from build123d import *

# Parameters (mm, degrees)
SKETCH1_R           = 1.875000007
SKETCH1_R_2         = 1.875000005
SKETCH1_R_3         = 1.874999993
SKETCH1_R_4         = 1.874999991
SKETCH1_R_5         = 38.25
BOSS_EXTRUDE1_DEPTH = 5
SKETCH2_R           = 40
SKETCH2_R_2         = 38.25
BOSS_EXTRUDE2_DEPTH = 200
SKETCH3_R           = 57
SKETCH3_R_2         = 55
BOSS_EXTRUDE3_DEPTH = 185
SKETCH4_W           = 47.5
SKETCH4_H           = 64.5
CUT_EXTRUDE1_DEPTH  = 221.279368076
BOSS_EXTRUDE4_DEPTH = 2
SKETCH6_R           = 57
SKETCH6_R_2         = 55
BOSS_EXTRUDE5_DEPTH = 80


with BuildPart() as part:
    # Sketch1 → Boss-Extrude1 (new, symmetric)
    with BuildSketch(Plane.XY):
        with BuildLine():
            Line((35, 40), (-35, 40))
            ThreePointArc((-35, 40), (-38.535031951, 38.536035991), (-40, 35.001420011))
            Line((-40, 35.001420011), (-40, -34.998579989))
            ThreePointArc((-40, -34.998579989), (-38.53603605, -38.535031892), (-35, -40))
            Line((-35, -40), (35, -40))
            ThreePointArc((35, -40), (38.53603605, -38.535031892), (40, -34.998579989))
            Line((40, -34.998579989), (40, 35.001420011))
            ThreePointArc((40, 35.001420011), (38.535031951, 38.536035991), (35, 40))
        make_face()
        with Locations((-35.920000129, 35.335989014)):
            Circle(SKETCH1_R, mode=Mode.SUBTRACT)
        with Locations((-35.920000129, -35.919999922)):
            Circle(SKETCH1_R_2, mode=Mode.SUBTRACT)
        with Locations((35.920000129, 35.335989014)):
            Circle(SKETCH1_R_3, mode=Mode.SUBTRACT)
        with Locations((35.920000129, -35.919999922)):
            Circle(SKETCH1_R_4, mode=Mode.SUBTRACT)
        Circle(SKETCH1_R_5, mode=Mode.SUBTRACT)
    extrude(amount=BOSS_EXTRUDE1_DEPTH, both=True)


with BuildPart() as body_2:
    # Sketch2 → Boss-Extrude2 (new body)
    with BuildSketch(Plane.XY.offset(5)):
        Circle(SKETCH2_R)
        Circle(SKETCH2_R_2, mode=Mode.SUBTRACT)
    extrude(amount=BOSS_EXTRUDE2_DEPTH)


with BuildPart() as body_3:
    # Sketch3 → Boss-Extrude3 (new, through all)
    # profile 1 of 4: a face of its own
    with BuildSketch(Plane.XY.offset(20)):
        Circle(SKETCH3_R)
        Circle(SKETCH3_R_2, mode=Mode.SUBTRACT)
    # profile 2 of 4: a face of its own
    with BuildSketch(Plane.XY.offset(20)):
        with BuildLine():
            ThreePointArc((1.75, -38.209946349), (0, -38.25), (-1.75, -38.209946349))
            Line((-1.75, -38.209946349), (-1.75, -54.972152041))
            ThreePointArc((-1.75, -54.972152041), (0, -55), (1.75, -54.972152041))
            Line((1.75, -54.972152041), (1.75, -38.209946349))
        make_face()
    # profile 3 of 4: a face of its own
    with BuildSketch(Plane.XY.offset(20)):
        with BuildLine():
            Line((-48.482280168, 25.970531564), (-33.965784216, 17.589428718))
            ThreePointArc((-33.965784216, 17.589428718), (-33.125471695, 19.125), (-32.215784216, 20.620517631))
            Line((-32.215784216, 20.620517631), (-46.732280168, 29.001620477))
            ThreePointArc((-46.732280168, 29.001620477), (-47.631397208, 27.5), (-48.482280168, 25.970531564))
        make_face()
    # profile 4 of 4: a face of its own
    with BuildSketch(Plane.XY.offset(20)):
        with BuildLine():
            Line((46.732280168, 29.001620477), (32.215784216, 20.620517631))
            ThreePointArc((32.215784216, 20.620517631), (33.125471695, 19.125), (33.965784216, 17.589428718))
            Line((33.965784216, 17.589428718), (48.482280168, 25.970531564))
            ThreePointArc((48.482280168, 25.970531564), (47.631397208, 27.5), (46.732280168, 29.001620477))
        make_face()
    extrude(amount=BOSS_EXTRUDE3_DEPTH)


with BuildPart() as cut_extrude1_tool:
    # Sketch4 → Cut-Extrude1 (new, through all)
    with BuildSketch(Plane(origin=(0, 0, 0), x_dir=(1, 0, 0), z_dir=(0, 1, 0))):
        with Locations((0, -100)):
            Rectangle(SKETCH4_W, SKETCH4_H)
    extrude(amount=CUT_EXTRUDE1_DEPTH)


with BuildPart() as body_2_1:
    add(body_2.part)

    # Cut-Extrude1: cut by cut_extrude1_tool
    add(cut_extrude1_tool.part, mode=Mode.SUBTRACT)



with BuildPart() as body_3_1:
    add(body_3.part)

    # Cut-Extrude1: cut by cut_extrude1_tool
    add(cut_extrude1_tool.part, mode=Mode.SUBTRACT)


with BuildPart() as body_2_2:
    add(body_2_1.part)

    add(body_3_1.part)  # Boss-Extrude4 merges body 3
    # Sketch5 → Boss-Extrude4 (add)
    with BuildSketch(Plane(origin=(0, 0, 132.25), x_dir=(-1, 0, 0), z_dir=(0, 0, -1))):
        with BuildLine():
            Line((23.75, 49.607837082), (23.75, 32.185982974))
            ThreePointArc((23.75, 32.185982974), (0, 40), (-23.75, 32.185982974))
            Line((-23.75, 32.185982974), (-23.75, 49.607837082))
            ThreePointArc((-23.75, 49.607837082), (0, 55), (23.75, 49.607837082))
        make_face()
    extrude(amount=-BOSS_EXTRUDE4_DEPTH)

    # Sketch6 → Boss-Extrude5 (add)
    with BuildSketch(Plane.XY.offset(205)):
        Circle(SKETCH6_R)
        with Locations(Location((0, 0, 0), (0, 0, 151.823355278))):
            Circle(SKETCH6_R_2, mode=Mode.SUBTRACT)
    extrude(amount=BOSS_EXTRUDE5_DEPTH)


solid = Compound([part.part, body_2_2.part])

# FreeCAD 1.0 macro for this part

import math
import FreeCAD as App
import Part
import Sketcher
from FreeCAD import Vector
Q = App.Units.Quantity


def add_polygon(sketch, points):
    """Adds a closed chain of lines whose ends are joined by coincident constraints."""
    first, n = sketch.GeometryCount, len(points)
    for a, b in zip(points, points[1:] + points[:1]):
        sketch.addGeometry(Part.LineSegment(App.Vector(*a, 0), App.Vector(*b, 0)), False)
    for i in range(n):
        sketch.addConstraint(Sketcher.Constraint("Coincident", first + i, 2, first + (i + 1) % n, 1))

doc = App.newDocument("Part")
body = doc.addObject("PartDesign::Body", "Body")

# Sketch on XY plane
sketch1 = doc.addObject("Sketcher::SketchObject", "Sketch")
body.addObject(sketch1)
sketch1.AttachmentSupport = (doc.XY_Plane, [""])
sketch1.MapMode = "FlatFace"
sketch1.addGeometry(Part.LineSegment(Vector(35, 40, 0), Vector(-35, 40, 0)), False)
sketch1.addGeometry(Part.ArcOfCircle(Part.Circle(Vector(-35, 35, 0), Vector(0, 0, 1), 5), math.radians(90), math.radians(180)), False)
sketch1.addGeometry(Part.LineSegment(Vector(-40, 35, 0), Vector(-40, -35, 0)), False)
sketch1.addGeometry(Part.ArcOfCircle(Part.Circle(Vector(-35, -35, 0), Vector(0, 0, 1), 5), math.radians(180), math.radians(270)), False)
sketch1.addGeometry(Part.LineSegment(Vector(-35, -40, 0), Vector(35, -40, 0)), False)
sketch1.addGeometry(Part.ArcOfCircle(Part.Circle(Vector(35, -35, 0), Vector(0, 0, 1), 5), math.radians(-90), math.radians(0)), False)
sketch1.addGeometry(Part.LineSegment(Vector(40, -35, 0), Vector(40, 35, 0)), False)
sketch1.addGeometry(Part.ArcOfCircle(Part.Circle(Vector(35, 35, 0), Vector(0, 0, 1), 5), math.radians(0), math.radians(90)), False)
sketch1.addGeometry(Part.Circle(Vector(-35.9, -35.9, 0), Vector(0, 0, 1), 1.9), False)
sketch1.addGeometry(Part.Circle(Vector(35.9, -35.9, 0), Vector(0, 0, 1), 1.9), False)
sketch1.addGeometry(Part.Circle(Vector(-35.9, 35.3, 0), Vector(0, 0, 1), 1.9), False)
sketch1.addGeometry(Part.Circle(Vector(0, 0, 0), Vector(0, 0, 1), 38.2), False)
sketch1.addGeometry(Part.Circle(Vector(35.9, 35.3, 0), Vector(0, 0, 1), 1.9), False)
sketch1.addConstraint(Sketcher.Constraint("Tangent", 0, 2, 1, 1))
sketch1.addConstraint(Sketcher.Constraint("Coincident", 1, 2, 2, 1))
sketch1.addConstraint(Sketcher.Constraint("Coincident", 2, 2, 3, 1))
sketch1.addConstraint(Sketcher.Constraint("Tangent", 3, 2, 4, 1))
sketch1.addConstraint(Sketcher.Constraint("Tangent", 4, 2, 5, 1))
sketch1.addConstraint(Sketcher.Constraint("Coincident", 5, 2, 6, 1))
sketch1.addConstraint(Sketcher.Constraint("Coincident", 6, 2, 7, 1))
sketch1.addConstraint(Sketcher.Constraint("Tangent", 7, 2, 0, 1))
sketch1.addConstraint(Sketcher.Constraint("Horizontal", 0))
sketch1.addConstraint(Sketcher.Constraint("Vertical", 2))
sketch1.addConstraint(Sketcher.Constraint("Horizontal", 4))
sketch1.addConstraint(Sketcher.Constraint("Vertical", 6))
sketch1.addConstraint(Sketcher.Constraint("Coincident", 11, 3, -1, 1))
sketch1.addConstraint(Sketcher.Constraint("Equal", 1, 3))
sketch1.addConstraint(Sketcher.Constraint("Equal", 3, 5))
sketch1.addConstraint(Sketcher.Constraint("Equal", 5, 7))
sketch1.addConstraint(Sketcher.Constraint("Equal", 8, 9))
sketch1.addConstraint(Sketcher.Constraint("Equal", 9, 10))
sketch1.addConstraint(Sketcher.Constraint("Equal", 10, 12))
sketch1.addConstraint(Sketcher.Constraint("Symmetric", 1, 3, 5, 3, -1, 1))
sketch1.addConstraint(Sketcher.Constraint("Symmetric", 8, 3, 9, 3, -2))
sketch1.addConstraint(Sketcher.Constraint("Symmetric", 10, 3, 12, 3, -2))
sketch1.addConstraint(Sketcher.Constraint("Horizontal", 2, 2, 5, 2))
sketch1.addConstraint(Sketcher.Constraint("Horizontal", 1, 2, 6, 2))
sketch1.addConstraint(Sketcher.Constraint("Vertical", 8, 3, 10, 3))
sketch1.addConstraint(Sketcher.Constraint("Equal", 4, 2))
sketch1.addConstraint(Sketcher.Constraint("Radius", 1, 5.0))
sketch1.addConstraint(Sketcher.Constraint("Diameter", 11, 76.5))
sketch1.addConstraint(Sketcher.Constraint("Diameter", 8, 3.75))
sketch1.addConstraint(Sketcher.Constraint("DistanceX", 0, 2, 0, 1, 70.0))
sketch1.addConstraint(Sketcher.Constraint("DistanceY", -1, 1, 1, 3, 35.0))
sketch1.addConstraint(Sketcher.Constraint("DistanceX", 8, 3, -1, 1, 35.92))
sketch1.addConstraint(Sketcher.Constraint("DistanceY", 8, 3, -1, 1, 35.92))
sketch1.addConstraint(Sketcher.Constraint("DistanceY", -1, 1, 10, 3, 35.335989))
sketch1.addConstraint(Sketcher.Constraint("DistanceY", -1, 1, 1, 2, 35.00142))
pad1 = doc.addObject("PartDesign::Pad", "Pad")
body.addObject(pad1)
pad1.Profile = sketch1
pad1.Length = 10
pad1.Midplane = True
body2 = doc.addObject("PartDesign::Body", "Body001")

# Sketch on XY plane
sketch2 = doc.addObject("Sketcher::SketchObject", "Sketch001")
body2.addObject(sketch2)
sketch2.AttachmentSupport = (doc.getObject("XY_Plane001"), [""])
sketch2.MapMode = "FlatFace"
sketch2.AttachmentOffset = App.Placement(Vector(0, 0, 5), App.Rotation())
sketch2.addGeometry(Part.Circle(Vector(0, 0, 0), Vector(0, 0, 1), 40), False)
sketch2.addGeometry(Part.Circle(Vector(0, 0, 0), Vector(0, 0, 1), 38), False)
sketch2.addConstraint(Sketcher.Constraint("Coincident", 0, 3, -1, 1))
sketch2.addConstraint(Sketcher.Constraint("Coincident", 1, 3, -1, 1))
sketch2.addConstraint(Sketcher.Constraint("Diameter", 0, 80.0))
sketch2.addConstraint(Sketcher.Constraint("Diameter", 1, 76.5))
pad2 = doc.addObject("PartDesign::Pad", "Pad001")
body2.addObject(pad2)
pad2.Profile = sketch2
pad2.Length = 200
body3 = doc.addObject("PartDesign::Body", "Body002")

# Sketch on XY plane
sketch3 = doc.addObject("Sketcher::SketchObject", "Sketch002")
body3.addObject(sketch3)
sketch3.AttachmentSupport = (doc.getObject("XY_Plane002"), [""])
sketch3.MapMode = "FlatFace"
sketch3.AttachmentOffset = App.Placement(Vector(0, 0, 20), App.Rotation())
sketch3.addGeometry(Part.Circle(Vector(0, 0, 0), Vector(0, 0, 1), 57), False)
sketch3.addGeometry(Part.ArcOfCircle(Part.Circle(Vector(0, 0, 0), Vector(0, 0, 1), 55), math.radians(-88), math.radians(28)), False)
sketch3.addGeometry(Part.LineSegment(Vector(1.8, -55, 0), Vector(1.8, -38.2, 0)), False)
sketch3.addGeometry(Part.ArcOfCircle(Part.Circle(Vector(0, 0, 0), Vector(0, 0, 1), 38.2), math.radians(-92.62), math.radians(-87.38)), False)
sketch3.addGeometry(Part.LineSegment(Vector(-1.8, -38.2, 0), Vector(-1.8, -55, 0)), False)
sketch3.addGeometry(Part.ArcOfCircle(Part.Circle(Vector(0, 0, 0), Vector(0, 0, 1), 55), math.radians(152), math.radians(268)), False)
sketch3.addGeometry(Part.LineSegment(Vector(-48.5, 26, 0), Vector(-34, 17.6, 0)), False)
sketch3.addGeometry(Part.ArcOfCircle(Part.Circle(Vector(0, 0, 0), Vector(0, 0, 1), 38.3), math.radians(147.38), math.radians(152.62)), False)
sketch3.addGeometry(Part.LineSegment(Vector(-32.2, 20.6, 0), Vector(-46.7, 29, 0)), False)
sketch3.addGeometry(Part.ArcOfCircle(Part.Circle(Vector(0, 0, 0), Vector(0, 0, 1), 55), math.radians(32), math.radians(148)), False)
sketch3.addGeometry(Part.LineSegment(Vector(46.7, 29, 0), Vector(32.2, 20.6, 0)), False)
sketch3.addGeometry(Part.ArcOfCircle(Part.Circle(Vector(0, 0, 0), Vector(0, 0, 1), 38.3), math.radians(27.38), math.radians(32.62)), False)
sketch3.addGeometry(Part.LineSegment(Vector(34, 17.6, 0), Vector(48.5, 26, 0)), False)
sketch3.addConstraint(Sketcher.Constraint("Coincident", 1, 1, 2, 1))
sketch3.addConstraint(Sketcher.Constraint("Coincident", 2, 2, 3, 2))
sketch3.addConstraint(Sketcher.Constraint("Coincident", 3, 1, 4, 1))
sketch3.addConstraint(Sketcher.Constraint("Coincident", 4, 2, 5, 2))
sketch3.addConstraint(Sketcher.Constraint("Coincident", 5, 1, 6, 1))
sketch3.addConstraint(Sketcher.Constraint("Coincident", 6, 2, 7, 2))
sketch3.addConstraint(Sketcher.Constraint("Coincident", 7, 1, 8, 1))
sketch3.addConstraint(Sketcher.Constraint("Coincident", 8, 2, 9, 2))
sketch3.addConstraint(Sketcher.Constraint("Coincident", 9, 1, 10, 1))
sketch3.addConstraint(Sketcher.Constraint("Coincident", 10, 2, 11, 2))
sketch3.addConstraint(Sketcher.Constraint("Coincident", 11, 1, 12, 1))
sketch3.addConstraint(Sketcher.Constraint("Coincident", 12, 2, 1, 2))
sketch3.addConstraint(Sketcher.Constraint("Vertical", 2))
sketch3.addConstraint(Sketcher.Constraint("Vertical", 4))
sketch3.addConstraint(Sketcher.Constraint("Coincident", 0, 3, -1, 1))
sketch3.addConstraint(Sketcher.Constraint("Coincident", 1, 3, -1, 1))
sketch3.addConstraint(Sketcher.Constraint("Coincident", 3, 3, -1, 1))
sketch3.addConstraint(Sketcher.Constraint("Coincident", 5, 3, -1, 1))
sketch3.addConstraint(Sketcher.Constraint("Coincident", 7, 3, -1, 1))
sketch3.addConstraint(Sketcher.Constraint("Coincident", 9, 3, -1, 1))
sketch3.addConstraint(Sketcher.Constraint("Coincident", 11, 3, -1, 1))
sketch3.addConstraint(Sketcher.Constraint("Equal", 1, 5))
sketch3.addConstraint(Sketcher.Constraint("Equal", 3, 7))
sketch3.addConstraint(Sketcher.Constraint("Equal", 5, 9))
sketch3.addConstraint(Sketcher.Constraint("Equal", 7, 11))
sketch3.addConstraint(Sketcher.Constraint("Parallel", 6, 8))
sketch3.addConstraint(Sketcher.Constraint("Parallel", 10, 12))
sketch3.addConstraint(Sketcher.Constraint("Horizontal", 2, 2, 3, 1))
sketch3.addConstraint(Sketcher.Constraint("Horizontal", 8, 2, 9, 1))
sketch3.addConstraint(Sketcher.Constraint("Horizontal", 7, 1, 10, 2))
sketch3.addConstraint(Sketcher.Constraint("Horizontal", 6, 2, 11, 1))
sketch3.addConstraint(Sketcher.Constraint("Equal", 6, 8))
sketch3.addConstraint(Sketcher.Constraint("Diameter", 0, 114.0))
sketch3.addConstraint(Sketcher.Constraint("Radius", 1, 55.0))
sketch3.addConstraint(Sketcher.Constraint("Angle", 6, Q("-30 deg")))
sketch3.addConstraint(Sketcher.Constraint("Radius", 3, 38.25))
sketch3.addConstraint(Sketcher.Constraint("DistanceX", 3, 1, 2, 2, 3.5))
sketch3.addConstraint(Sketcher.Constraint("DistanceX", 6, 2, 7, 1, 1.75))
pad3 = doc.addObject("PartDesign::Pad", "Pad002")
body3.addObject(pad3)
pad3.Profile = sketch3
pad3.Length = 185
body4 = doc.addObject("PartDesign::Body", "Body003")

# Sketch on XZ plane
sketch4 = doc.addObject("Sketcher::SketchObject", "Sketch003")
body4.addObject(sketch4)
sketch4.AttachmentSupport = (doc.getObject("XZ_Plane003"), [""])
sketch4.MapMode = "FlatFace"
add_polygon(sketch4, [(-24, 68), (-24, 132), (24, 132), (24, 68)])  # lines 0-3
sketch4.addConstraint(Sketcher.Constraint("Vertical", 0))
sketch4.addConstraint(Sketcher.Constraint("Horizontal", 1))
sketch4.addConstraint(Sketcher.Constraint("Vertical", 2))
sketch4.addConstraint(Sketcher.Constraint("Horizontal", 3))
sketch4.addConstraint(Sketcher.Constraint("DistanceX", 1, 1, 1, 2, 47.5))
sketch4.addConstraint(Sketcher.Constraint("DistanceY", 0, 1, 0, 2, 64.5))
sketch4.addConstraint(Sketcher.Constraint("DistanceX", 0, 2, -1, 1, 23.75))
sketch4.addConstraint(Sketcher.Constraint("DistanceY", -1, 1, 0, 2, 132.25))
pad4 = doc.addObject("PartDesign::Pad", "Pad003")
body4.addObject(pad4)
pad4.Profile = sketch4
pad4.Length = 221.279368
pad4.Reversed = True
doc.recompute()

body5 = doc.addObject("PartDesign::Body", "Body004")
body5.BaseFeature = body4
boolean = doc.addObject("PartDesign::Boolean", "Boolean")
body2.addObject(boolean)
boolean.Type = "Cut"
boolean.addObjects([body5])
doc.recompute()

boolean2 = doc.addObject("PartDesign::Boolean", "Boolean001")
body3.addObject(boolean2)
boolean2.Type = "Cut"
boolean2.addObjects([body4])
doc.recompute()

boolean3 = doc.addObject("PartDesign::Boolean", "Boolean002")
body2.addObject(boolean3)
boolean3.Type = "Fuse"
boolean3.addObjects([body3])

# Sketch on XY plane
sketch5 = doc.addObject("Sketcher::SketchObject", "Sketch004")
body2.addObject(sketch5)
sketch5.AttachmentSupport = (doc.getObject("XY_Plane001"), [""])
sketch5.MapMode = "FlatFace"
sketch5.AttachmentOffset = App.Placement(Vector(0, 0, 132.25), App.Rotation())
sketch5.addGeometry(Part.LineSegment(Vector(-24, 32, 0), Vector(-24, 50, 0)), False)
sketch5.addGeometry(Part.ArcOfCircle(Part.Circle(Vector(0, 0, 0), Vector(0, 0, 1), 55), math.radians(64), math.radians(116)), False)
sketch5.addGeometry(Part.LineSegment(Vector(24, 50, 0), Vector(24, 32, 0)), False)
sketch5.addGeometry(Part.ArcOfCircle(Part.Circle(Vector(0, 0, 0), Vector(0, 0, 1), 40), math.radians(54), math.radians(126)), False)
sketch5.addConstraint(Sketcher.Constraint("Coincident", 0, 2, 1, 2))
sketch5.addConstraint(Sketcher.Constraint("Coincident", 1, 1, 2, 1))
sketch5.addConstraint(Sketcher.Constraint("Coincident", 2, 2, 3, 1))
sketch5.addConstraint(Sketcher.Constraint("Coincident", 3, 2, 0, 1))
sketch5.addConstraint(Sketcher.Constraint("Vertical", 0))
sketch5.addConstraint(Sketcher.Constraint("Vertical", 2))
sketch5.addConstraint(Sketcher.Constraint("Coincident", 1, 3, -1, 1))
sketch5.addConstraint(Sketcher.Constraint("Coincident", 3, 3, -1, 1))
sketch5.addConstraint(Sketcher.Constraint("Horizontal", 0, 2, 1, 1))
sketch5.addConstraint(Sketcher.Constraint("Radius", 1, 55.0))
sketch5.addConstraint(Sketcher.Constraint("Radius", 3, 40.0))
sketch5.addConstraint(Sketcher.Constraint("DistanceX", 0, 2, 1, 1, 47.5))
pad5 = doc.addObject("PartDesign::Pad", "Pad004")
body2.addObject(pad5)
pad5.Profile = sketch5
pad5.Length = 2

# Sketch on XY plane
sketch6 = doc.addObject("Sketcher::SketchObject", "Sketch005")
body2.addObject(sketch6)
sketch6.AttachmentSupport = (doc.getObject("XY_Plane001"), [""])
sketch6.MapMode = "FlatFace"
sketch6.AttachmentOffset = App.Placement(Vector(0, 0, 205), App.Rotation())
sketch6.addGeometry(Part.Circle(Vector(0, 0, 0), Vector(0, 0, 1), 57), False)
sketch6.addGeometry(Part.Circle(Vector(0, 0, 0), Vector(0, 0, 1), 55), False)
sketch6.addConstraint(Sketcher.Constraint("Coincident", 0, 3, -1, 1))
sketch6.addConstraint(Sketcher.Constraint("Coincident", 1, 3, -1, 1))
sketch6.addConstraint(Sketcher.Constraint("Diameter", 0, 114.0))
sketch6.addConstraint(Sketcher.Constraint("Diameter", 1, 110.0))
pad6 = doc.addObject("PartDesign::Pad", "Pad005")
body2.addObject(pad6)
pad6.Profile = sketch6
pad6.Length = 80

doc.recompute()
